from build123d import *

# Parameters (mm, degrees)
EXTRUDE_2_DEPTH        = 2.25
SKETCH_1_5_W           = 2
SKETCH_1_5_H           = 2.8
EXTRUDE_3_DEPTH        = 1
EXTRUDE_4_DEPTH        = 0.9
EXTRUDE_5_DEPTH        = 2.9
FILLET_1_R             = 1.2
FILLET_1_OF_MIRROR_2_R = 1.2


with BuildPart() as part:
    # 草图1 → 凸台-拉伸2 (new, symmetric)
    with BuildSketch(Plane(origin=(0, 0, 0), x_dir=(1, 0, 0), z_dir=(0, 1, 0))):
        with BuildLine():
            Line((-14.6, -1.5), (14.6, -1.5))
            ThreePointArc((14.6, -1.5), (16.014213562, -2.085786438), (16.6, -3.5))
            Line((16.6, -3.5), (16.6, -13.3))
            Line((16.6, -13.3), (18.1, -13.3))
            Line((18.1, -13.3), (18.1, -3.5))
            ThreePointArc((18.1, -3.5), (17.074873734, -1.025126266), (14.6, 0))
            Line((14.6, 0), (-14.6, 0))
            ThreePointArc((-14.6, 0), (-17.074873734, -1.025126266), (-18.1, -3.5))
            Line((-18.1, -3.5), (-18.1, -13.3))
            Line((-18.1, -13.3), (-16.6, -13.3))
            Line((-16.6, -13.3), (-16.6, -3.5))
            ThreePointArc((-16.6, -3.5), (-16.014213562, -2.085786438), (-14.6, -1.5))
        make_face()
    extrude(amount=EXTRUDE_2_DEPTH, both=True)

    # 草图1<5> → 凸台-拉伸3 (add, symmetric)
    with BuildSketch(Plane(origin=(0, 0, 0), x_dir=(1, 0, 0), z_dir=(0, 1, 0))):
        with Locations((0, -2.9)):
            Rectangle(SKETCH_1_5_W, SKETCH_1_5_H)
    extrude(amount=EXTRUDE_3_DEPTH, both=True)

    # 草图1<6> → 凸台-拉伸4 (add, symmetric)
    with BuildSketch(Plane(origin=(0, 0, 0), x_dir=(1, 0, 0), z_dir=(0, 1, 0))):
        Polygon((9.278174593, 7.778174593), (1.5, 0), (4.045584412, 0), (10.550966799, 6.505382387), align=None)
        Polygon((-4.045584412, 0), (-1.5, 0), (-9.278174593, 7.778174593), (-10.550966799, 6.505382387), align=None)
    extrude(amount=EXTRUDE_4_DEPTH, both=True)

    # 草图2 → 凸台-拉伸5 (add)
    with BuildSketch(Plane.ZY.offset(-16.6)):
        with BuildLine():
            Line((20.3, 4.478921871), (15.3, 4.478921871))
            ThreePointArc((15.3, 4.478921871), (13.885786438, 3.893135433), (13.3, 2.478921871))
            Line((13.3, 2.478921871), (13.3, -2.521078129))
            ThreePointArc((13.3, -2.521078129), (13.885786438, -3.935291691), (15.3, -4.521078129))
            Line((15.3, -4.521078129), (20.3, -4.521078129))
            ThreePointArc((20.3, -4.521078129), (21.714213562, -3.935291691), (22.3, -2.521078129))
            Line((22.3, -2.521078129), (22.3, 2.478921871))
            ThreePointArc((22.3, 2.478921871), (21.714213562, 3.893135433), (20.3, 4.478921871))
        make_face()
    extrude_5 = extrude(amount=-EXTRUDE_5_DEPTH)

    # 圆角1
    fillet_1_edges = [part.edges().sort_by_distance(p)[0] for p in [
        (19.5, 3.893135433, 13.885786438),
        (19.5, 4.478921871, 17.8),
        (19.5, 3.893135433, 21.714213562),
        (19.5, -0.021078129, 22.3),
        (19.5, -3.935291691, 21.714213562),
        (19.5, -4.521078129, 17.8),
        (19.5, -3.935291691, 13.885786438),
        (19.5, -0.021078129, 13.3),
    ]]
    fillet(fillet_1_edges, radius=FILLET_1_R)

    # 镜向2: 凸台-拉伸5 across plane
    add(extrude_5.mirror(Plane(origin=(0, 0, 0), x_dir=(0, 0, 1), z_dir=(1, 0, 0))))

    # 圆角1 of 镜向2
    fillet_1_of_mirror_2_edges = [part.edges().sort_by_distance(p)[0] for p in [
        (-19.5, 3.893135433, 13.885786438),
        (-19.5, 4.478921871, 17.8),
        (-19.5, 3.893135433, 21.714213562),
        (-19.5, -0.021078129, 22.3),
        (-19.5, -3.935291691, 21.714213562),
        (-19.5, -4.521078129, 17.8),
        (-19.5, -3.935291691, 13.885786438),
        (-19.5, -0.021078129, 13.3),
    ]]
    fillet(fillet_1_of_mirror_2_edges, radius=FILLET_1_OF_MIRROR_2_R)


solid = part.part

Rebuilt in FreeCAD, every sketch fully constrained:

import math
import FreeCAD as App
import Part
import Sketcher

V = App.Vector
Q = App.Units.Quantity


def edges_at(feature, points):
    """Names of the edges that pass closest to the given points."""
    edges = feature.Shape.Edges
    near = lambda p: min(range(len(edges)), key=lambda i: edges[i].distToShape(Part.Vertex(*p))[0])
    return sorted({f"Edge{near(p) + 1}" for p in points})


def add_polygon(sketch, points):
    """Adds a closed chain of lines whose ends are joined by coincident constraints."""
    first, n = sketch.GeometryCount, len(points)
    for a, b in zip(points, points[1:] + points[:1]):
        sketch.addGeometry(Part.LineSegment(App.Vector(*a, 0), App.Vector(*b, 0)), False)
    for i in range(n):
        sketch.addConstraint(Sketcher.Constraint("Coincident", first + i, 2, first + (i + 1) % n, 1))

doc = App.newDocument("Part")
body = doc.addObject("PartDesign::Body", "Body")

sketch1 = doc.addObject("Sketcher::SketchObject", "Sketch")
body.addObject(sketch1)
sketch1.AttachmentSupport = (doc.XZ_Plane, [""])
sketch1.MapMode = "FlatFace"
sketch1.addGeometry(Part.LineSegment(V(-14.6, 1.5, 0), V(14.6, 1.5, 0)), False)
sketch1.addGeometry(Part.ArcOfCircle(Part.Circle(V(14.6, 3.5, 0), V(0, 0, 1), 2), math.radians(-90), math.radians(0)), False)
sketch1.addGeometry(Part.LineSegment(V(16.6, 3.5, 0), V(16.6, 13.3, 0)), False)
sketch1.addGeometry(Part.LineSegment(V(16.6, 13.3, 0), V(18.1, 13.3, 0)), False)
sketch1.addGeometry(Part.LineSegment(V(18.1, 13.3, 0), V(18.1, 3.5, 0)), False)
sketch1.addGeometry(Part.ArcOfCircle(Part.Circle(V(14.6, 3.5, 0), V(0, 0, 1), 3.5), math.radians(-90), math.radians(0)), False)
sketch1.addGeometry(Part.LineSegment(V(14.6, 0, 0), V(-14.6, 0, 0)), False)
sketch1.addGeometry(Part.ArcOfCircle(Part.Circle(V(-14.6, 3.5, 0), V(0, 0, 1), 3.5), math.radians(-180), math.radians(-90)), False)
sketch1.addGeometry(Part.LineSegment(V(-18.1, 3.5, 0), V(-18.1, 13.3, 0)), False)
sketch1.addGeometry(Part.LineSegment(V(-18.1, 13.3, 0), V(-16.6, 13.3, 0)), False)
sketch1.addGeometry(Part.LineSegment(V(-16.6, 13.3, 0), V(-16.6, 3.5, 0)), False)
sketch1.addGeometry(Part.ArcOfCircle(Part.Circle(V(-14.6, 3.5, 0), V(0, 0, 1), 2), math.radians(-180), math.radians(-90)), False)
sketch1.addConstraint(Sketcher.Constraint("Tangent", 0, 2, 1, 1))
sketch1.addConstraint(Sketcher.Constraint("Tangent", 1, 2, 2, 1))
sketch1.addConstraint(Sketcher.Constraint("Coincident", 2, 2, 3, 1))
sketch1.addConstraint(Sketcher.Constraint("Coincident", 3, 2, 4, 1))
sketch1.addConstraint(Sketcher.Constraint("Tangent", 4, 2, 5, 2))
sketch1.addConstraint(Sketcher.Constraint("Tangent", 5, 1, 6, 1))
sketch1.addConstraint(Sketcher.Constraint("Tangent", 6, 2, 7, 2))
sketch1.addConstraint(Sketcher.Constraint("Tangent", 7, 1, 8, 1))
sketch1.addConstraint(Sketcher.Constraint("Coincident", 8, 2, 9, 1))
sketch1.addConstraint(Sketcher.Constraint("Coincident", 9, 2, 10, 1))
sketch1.addConstraint(Sketcher.Constraint("Tangent", 10, 2, 11, 1))
sketch1.addConstraint(Sketcher.Constraint("Tangent", 11, 2, 0, 1))
sketch1.addConstraint(Sketcher.Constraint("Horizontal", 0))
sketch1.addConstraint(Sketcher.Constraint("Vertical", 2))
sketch1.addConstraint(Sketcher.Constraint("Horizontal", 3))
sketch1.addConstraint(Sketcher.Constraint("Vertical", 4))
sketch1.addConstraint(Sketcher.Constraint("Horizontal", 6))
sketch1.addConstraint(Sketcher.Constraint("Vertical", 8))
sketch1.addConstraint(Sketcher.Constraint("Horizontal", 9))
sketch1.addConstraint(Sketcher.Constraint("Vertical", 10))
sketch1.addConstraint(Sketcher.Constraint("Coincident", 5, 3, 1, 3))
sketch1.addConstraint(Sketcher.Constraint("Coincident", 11, 3, 7, 3))
sketch1.addConstraint(Sketcher.Constraint("Equal", 5, 7))
sketch1.addConstraint(Sketcher.Constraint("Symmetric", 5, 1, 6, 2, -1, 1))
sketch1.addConstraint(Sketcher.Constraint("Horizontal", 3, 2, 8, 2))
sketch1.addConstraint(Sketcher.Constraint("Radius", 1, Q("2 mm")))
sketch1.addConstraint(Sketcher.Constraint("Radius", 5, Q("3.5 mm")))
sketch1.addConstraint(Sketcher.Constraint("DistanceX", 0, 1, 0, 2, Q("29.2 mm")))
sketch1.addConstraint(Sketcher.Constraint("DistanceY", 2, 1, 2, 2, Q("9.8 mm")))
pad1 = doc.addObject("PartDesign::Pad", "Pad")
body.addObject(pad1)
pad1.Profile = sketch1
pad1.Length = 4.5
pad1.Midplane = True

sketch2 = doc.addObject("Sketcher::SketchObject", "Sketch001")
body.addObject(sketch2)
sketch2.AttachmentSupport = (doc.XZ_Plane, [""])
sketch2.MapMode = "FlatFace"
add_polygon(sketch2, [(-1, 1.5), (-1, 4.3), (1, 4.3), (1, 1.5)])
sketch2.addConstraint(Sketcher.Constraint("Vertical", 0))
sketch2.addConstraint(Sketcher.Constraint("Horizontal", 1))
sketch2.addConstraint(Sketcher.Constraint("Vertical", 2))
sketch2.addConstraint(Sketcher.Constraint("Horizontal", 3))
sketch2.addConstraint(Sketcher.Constraint("DistanceX", 1, 1, 1, 2, Q("2 mm")))
sketch2.addConstraint(Sketcher.Constraint("DistanceY", 0, 1, 0, 2, Q("2.8 mm")))
sketch2.addConstraint(Sketcher.Constraint("DistanceX", 0, 2, -1, 1, Q("1 mm")))
sketch2.addConstraint(Sketcher.Constraint("DistanceY", -1, 1, 0, 2, Q("4.3 mm")))
pad2 = doc.addObject("PartDesign::Pad", "Pad001")
body.addObject(pad2)
pad2.Profile = sketch2
pad2.Length = 2
pad2.Midplane = True

sketch3 = doc.addObject("Sketcher::SketchObject", "Sketch002")
body.addObject(sketch3)
sketch3.AttachmentSupport = (doc.XZ_Plane, [""])
sketch3.MapMode = "FlatFace"
add_polygon(sketch3, [(9.278175, -7.778175), (1.5, 0), (4.045584, 0), (10.550967, -6.505382)])
add_polygon(sketch3, [(-4.045584, 0), (-1.5, 0), (-9.278175, -7.778175), (-10.550967, -6.505382)])
sketch3.addConstraint(Sketcher.Constraint("Horizontal", 1))
sketch3.addConstraint(Sketcher.Constraint("Horizontal", 4))
sketch3.addConstraint(Sketcher.Constraint("Symmetric", 0, 2, 4, 2, -1, 1))
sketch3.addConstraint(Sketcher.Constraint("Symmetric", 3, 2, 5, 2, -2))
sketch3.addConstraint(Sketcher.Constraint("Symmetric", 2, 2, 6, 2, -2))
sketch3.addConstraint(Sketcher.Constraint("Symmetric", 1, 2, 7, 2, -2))
sketch3.addConstraint(Sketcher.Constraint("Parallel", 0, 2))
sketch3.addConstraint(Sketcher.Constraint("Perpendicular", 2, 3))
sketch3.addConstraint(Sketcher.Constraint("Parallel", 3, 5))
sketch3.addConstraint(Sketcher.Constraint("Distance", 0, Q("11 mm")))
sketch3.addConstraint(Sketcher.Constraint("DistanceX", 4, 2, 0, 2, Q("3 mm")))
sketch3.addConstraint(Sketcher.Constraint("Distance", 2, Q("9.2 mm")))
pad3 = doc.addObject("PartDesign::Pad", "Pad002")
body.addObject(pad3)
pad3.Profile = sketch3
pad3.Length = 1.8
pad3.Midplane = True

sketch4 = doc.addObject("Sketcher::SketchObject", "Sketch003")
body.addObject(sketch4)
sketch4.AttachmentSupport = (doc.YZ_Plane, [""])
sketch4.MapMode = "FlatFace"
sketch4.AttachmentOffset = App.Placement(V(0, 0, 16.6), App.Rotation())
sketch4.addGeometry(Part.LineSegment(V(4.478922, 20.3, 0), V(4.478922, 15.3, 0)), False)
sketch4.addGeometry(Part.ArcOfCircle(Part.Circle(V(2.478922, 15.3, 0), V(0, 0, 1), 2), math.radians(-90), math.radians(0)), False)
sketch4.addGeometry(Part.LineSegment(V(2.478922, 13.3, 0), V(-2.521078, 13.3, 0)), False)
sketch4.addGeometry(Part.ArcOfCircle(Part.Circle(V(-2.521078, 15.3, 0), V(0, 0, 1), 2), math.radians(-180), math.radians(-90)), False)
sketch4.addGeometry(Part.LineSegment(V(-4.521078, 15.3, 0), V(-4.521078, 20.3, 0)), False)
sketch4.addGeometry(Part.ArcOfCircle(Part.Circle(V(-2.521078, 20.3, 0), V(0, 0, 1), 2), math.radians(90), math.radians(180)), False)
sketch4.addGeometry(Part.LineSegment(V(-2.521078, 22.3, 0), V(2.478922, 22.3, 0)), False)
sketch4.addGeometry(Part.ArcOfCircle(Part.Circle(V(2.478922, 20.3, 0), V(0, 0, 1), 2), math.radians(0), math.radians(90)), False)
sketch4.addConstraint(Sketcher.Constraint("Tangent", 0, 2, 1, 2))
sketch4.addConstraint(Sketcher.Constraint("Tangent", 1, 1, 2, 1))
sketch4.addConstraint(Sketcher.Constraint("Tangent", 2, 2, 3, 2))
sketch4.addConstraint(Sketcher.Constraint("Tangent", 3, 1, 4, 1))
sketch4.addConstraint(Sketcher.Constraint("Tangent", 4, 2, 5, 2))
sketch4.addConstraint(Sketcher.Constraint("Tangent", 5, 1, 6, 1))
sketch4.addConstraint(Sketcher.Constraint("Tangent", 6, 2, 7, 2))
sketch4.addConstraint(Sketcher.Constraint("Tangent", 7, 1, 0, 1))
sketch4.addConstraint(Sketcher.Constraint("Vertical", 0))
sketch4.addConstraint(Sketcher.Constraint("Horizontal", 2))
sketch4.addConstraint(Sketcher.Constraint("Vertical", 4))
sketch4.addConstraint(Sketcher.Constraint("Horizontal", 6))
sketch4.addConstraint(Sketcher.Constraint("Equal", 1, 3))
sketch4.addConstraint(Sketcher.Constraint("Equal", 3, 5))
sketch4.addConstraint(Sketcher.Constraint("Equal", 5, 7))
sketch4.addConstraint(Sketcher.Constraint("Equal", 6, 0))
sketch4.addConstraint(Sketcher.Constraint("Radius", 1, Q("2 mm")))
sketch4.addConstraint(Sketcher.Constraint("DistanceX", 2, 2, 2, 1, Q("5 mm")))
sketch4.addConstraint(Sketcher.Constraint("DistanceY", -1, 1, 1, 3, Q("15.3 mm")))
sketch4.addConstraint(Sketcher.Constraint("DistanceX", -1, 1, 1, 3, Q("2.478922 mm")))
pad4 = doc.addObject("PartDesign::Pad", "Pad003")
body.addObject(pad4)
pad4.Profile = sketch4
pad4.Length = 2.9
doc.recompute()

fillet = doc.addObject("PartDesign::Fillet", "Fillet")
body.addObject(fillet)
fillet.Base = (pad4, edges_at(pad4, [
    (19.5, 3.893, 13.886),
    (19.5, 4.479, 17.8),
    (19.5, 3.893, 21.714),
    (19.5, -0.021, 22.3),
    (19.5, -3.935, 21.714),
    (19.5, -4.521, 17.8),
    (19.5, -3.935, 13.886),
    (19.5, -0.021, 13.3),
]))
fillet.Radius = 1.2
doc.recompute()

mirrored = doc.addObject("PartDesign::Mirrored", "Mirrored")
body.addObject(mirrored)
mirrored.Originals = [pad4]
mirrored.MirrorPlane = (doc.YZ_Plane, [""])
body.Tip = mirrored
doc.recompute()

fillet2 = doc.addObject("PartDesign::Fillet", "Fillet001")
body.addObject(fillet2)
fillet2.Base = (mirrored, edges_at(mirrored, [
    (-19.5, 3.893, 13.886),
    (-19.5, 4.479, 17.8),
    (-19.5, 3.893, 21.714),
    (-19.5, -0.021, 22.3),
    (-19.5, -3.935, 21.714),
    (-19.5, -4.521, 17.8),
    (-19.5, -3.935, 13.886),
    (-19.5, -0.021, 13.3),
]))
fillet2.Radius = 1.2

doc.recompute()
